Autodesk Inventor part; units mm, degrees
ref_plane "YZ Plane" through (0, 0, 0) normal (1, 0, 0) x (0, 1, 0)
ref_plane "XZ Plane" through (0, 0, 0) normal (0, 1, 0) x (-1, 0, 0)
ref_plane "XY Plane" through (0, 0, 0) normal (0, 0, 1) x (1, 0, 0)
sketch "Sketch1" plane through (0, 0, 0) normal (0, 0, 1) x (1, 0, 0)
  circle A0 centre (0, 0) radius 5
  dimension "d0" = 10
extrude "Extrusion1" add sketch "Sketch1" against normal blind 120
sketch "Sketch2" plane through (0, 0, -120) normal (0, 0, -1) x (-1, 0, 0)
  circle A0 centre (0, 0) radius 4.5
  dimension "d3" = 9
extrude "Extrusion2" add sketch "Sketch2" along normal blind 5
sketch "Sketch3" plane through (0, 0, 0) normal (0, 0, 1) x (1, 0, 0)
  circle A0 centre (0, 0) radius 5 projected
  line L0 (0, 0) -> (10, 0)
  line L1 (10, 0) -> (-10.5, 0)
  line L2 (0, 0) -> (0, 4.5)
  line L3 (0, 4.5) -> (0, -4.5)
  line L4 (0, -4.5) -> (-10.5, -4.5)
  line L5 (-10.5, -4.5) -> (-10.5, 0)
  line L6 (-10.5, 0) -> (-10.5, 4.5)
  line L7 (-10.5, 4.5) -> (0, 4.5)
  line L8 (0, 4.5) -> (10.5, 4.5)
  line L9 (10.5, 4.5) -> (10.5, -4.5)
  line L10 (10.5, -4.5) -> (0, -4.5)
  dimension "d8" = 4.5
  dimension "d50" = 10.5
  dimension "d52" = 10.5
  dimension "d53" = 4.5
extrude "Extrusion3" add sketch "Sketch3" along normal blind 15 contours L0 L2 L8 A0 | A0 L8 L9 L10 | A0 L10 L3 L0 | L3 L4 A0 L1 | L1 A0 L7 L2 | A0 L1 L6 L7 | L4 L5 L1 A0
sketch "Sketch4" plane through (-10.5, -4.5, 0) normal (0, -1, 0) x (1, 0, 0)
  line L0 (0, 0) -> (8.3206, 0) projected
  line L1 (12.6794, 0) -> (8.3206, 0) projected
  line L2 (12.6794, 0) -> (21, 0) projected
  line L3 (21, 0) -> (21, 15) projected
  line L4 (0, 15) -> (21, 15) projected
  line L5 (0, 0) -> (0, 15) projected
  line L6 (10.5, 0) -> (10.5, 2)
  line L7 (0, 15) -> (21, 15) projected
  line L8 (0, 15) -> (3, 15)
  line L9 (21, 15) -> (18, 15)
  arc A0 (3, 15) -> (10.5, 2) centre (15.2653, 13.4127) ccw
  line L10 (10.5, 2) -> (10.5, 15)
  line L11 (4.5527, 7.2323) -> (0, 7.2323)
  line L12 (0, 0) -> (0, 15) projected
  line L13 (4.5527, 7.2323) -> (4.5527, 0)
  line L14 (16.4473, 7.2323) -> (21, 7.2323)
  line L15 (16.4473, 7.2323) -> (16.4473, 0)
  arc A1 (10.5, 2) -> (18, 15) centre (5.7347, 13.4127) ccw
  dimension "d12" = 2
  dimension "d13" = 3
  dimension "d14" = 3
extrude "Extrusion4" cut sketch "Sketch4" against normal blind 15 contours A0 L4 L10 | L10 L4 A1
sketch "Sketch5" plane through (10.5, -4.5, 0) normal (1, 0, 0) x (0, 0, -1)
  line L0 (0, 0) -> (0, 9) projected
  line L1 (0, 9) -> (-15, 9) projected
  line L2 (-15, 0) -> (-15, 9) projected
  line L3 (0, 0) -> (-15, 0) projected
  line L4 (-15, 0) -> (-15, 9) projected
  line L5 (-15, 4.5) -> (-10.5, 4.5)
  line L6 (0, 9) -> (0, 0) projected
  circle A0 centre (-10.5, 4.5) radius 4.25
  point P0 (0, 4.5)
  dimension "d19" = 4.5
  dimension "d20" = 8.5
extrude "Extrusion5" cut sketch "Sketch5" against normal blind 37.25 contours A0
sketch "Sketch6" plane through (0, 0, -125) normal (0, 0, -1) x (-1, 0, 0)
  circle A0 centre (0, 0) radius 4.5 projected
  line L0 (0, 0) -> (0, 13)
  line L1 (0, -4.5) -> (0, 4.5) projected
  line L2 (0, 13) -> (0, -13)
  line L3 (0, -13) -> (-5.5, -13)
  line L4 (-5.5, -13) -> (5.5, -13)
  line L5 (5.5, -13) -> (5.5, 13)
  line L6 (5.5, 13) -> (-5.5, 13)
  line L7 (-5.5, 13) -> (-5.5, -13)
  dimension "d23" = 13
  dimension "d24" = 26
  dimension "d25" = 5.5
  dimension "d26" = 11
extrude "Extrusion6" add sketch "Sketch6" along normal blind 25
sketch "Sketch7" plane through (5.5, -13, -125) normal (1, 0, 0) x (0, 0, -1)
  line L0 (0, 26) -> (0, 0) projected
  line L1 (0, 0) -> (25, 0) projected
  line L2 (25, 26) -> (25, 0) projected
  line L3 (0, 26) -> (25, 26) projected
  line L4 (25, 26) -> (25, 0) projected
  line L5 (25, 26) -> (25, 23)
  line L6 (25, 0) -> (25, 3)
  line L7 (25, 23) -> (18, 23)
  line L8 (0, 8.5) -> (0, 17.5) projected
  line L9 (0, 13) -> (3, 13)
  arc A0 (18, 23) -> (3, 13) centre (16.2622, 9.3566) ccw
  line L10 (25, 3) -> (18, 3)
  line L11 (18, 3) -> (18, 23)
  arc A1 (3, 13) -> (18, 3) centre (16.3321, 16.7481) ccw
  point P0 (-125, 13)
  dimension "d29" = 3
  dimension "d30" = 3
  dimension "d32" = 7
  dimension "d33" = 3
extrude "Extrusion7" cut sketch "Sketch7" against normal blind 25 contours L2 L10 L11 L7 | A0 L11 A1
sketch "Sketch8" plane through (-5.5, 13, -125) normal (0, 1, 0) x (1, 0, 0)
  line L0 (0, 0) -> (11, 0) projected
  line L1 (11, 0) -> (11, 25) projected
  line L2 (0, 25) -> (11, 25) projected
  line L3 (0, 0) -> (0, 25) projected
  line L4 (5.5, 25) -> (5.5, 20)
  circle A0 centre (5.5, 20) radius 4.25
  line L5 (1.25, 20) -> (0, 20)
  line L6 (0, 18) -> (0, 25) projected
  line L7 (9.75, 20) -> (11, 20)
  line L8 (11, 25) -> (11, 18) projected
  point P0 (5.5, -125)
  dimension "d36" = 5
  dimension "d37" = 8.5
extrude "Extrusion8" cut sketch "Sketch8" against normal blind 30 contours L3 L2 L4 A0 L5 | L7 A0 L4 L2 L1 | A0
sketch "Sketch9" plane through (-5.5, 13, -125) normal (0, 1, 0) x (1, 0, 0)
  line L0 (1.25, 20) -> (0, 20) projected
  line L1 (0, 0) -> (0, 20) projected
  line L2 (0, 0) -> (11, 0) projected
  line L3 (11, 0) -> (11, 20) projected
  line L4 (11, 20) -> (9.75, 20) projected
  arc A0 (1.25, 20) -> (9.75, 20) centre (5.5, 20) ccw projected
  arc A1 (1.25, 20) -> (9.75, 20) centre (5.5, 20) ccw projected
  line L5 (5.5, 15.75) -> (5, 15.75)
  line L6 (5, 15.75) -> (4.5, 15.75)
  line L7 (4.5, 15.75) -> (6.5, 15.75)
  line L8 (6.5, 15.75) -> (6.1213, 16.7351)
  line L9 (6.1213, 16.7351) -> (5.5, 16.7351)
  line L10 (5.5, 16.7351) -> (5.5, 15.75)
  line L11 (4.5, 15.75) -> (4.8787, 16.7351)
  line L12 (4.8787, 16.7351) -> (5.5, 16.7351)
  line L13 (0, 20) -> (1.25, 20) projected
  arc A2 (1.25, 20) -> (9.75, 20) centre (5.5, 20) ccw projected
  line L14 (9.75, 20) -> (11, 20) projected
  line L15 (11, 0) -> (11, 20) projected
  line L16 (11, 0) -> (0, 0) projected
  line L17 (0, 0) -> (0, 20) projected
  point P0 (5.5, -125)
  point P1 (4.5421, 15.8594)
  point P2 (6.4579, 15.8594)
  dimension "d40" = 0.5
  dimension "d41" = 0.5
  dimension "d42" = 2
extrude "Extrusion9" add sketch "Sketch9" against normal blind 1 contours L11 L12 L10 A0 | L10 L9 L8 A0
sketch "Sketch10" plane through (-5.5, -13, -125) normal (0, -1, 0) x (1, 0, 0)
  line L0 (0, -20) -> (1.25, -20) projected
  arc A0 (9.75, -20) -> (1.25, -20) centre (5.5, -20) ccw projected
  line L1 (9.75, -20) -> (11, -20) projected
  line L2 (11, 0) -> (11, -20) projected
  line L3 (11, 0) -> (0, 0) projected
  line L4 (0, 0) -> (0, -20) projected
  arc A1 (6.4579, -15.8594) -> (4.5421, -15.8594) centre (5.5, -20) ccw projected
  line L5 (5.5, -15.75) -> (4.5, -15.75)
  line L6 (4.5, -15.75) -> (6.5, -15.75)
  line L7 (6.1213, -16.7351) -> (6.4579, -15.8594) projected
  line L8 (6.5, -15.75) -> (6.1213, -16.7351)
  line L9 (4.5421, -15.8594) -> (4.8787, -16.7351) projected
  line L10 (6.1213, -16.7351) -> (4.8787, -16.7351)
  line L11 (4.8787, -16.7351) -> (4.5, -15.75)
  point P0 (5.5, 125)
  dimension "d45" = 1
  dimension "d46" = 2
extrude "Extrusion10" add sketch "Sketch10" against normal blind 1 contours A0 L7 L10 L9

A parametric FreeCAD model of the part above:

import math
import FreeCAD as App
import Part
import Sketcher
from FreeCAD import Vector
Q = App.Units.Quantity


def add_polygon(sketch, points):
    """Adds a closed chain of lines whose ends are joined by coincident constraints."""
    first, n = sketch.GeometryCount, len(points)
    for a, b in zip(points, points[1:] + points[:1]):
        sketch.addGeometry(Part.LineSegment(App.Vector(*a, 0), App.Vector(*b, 0)), False)
    for i in range(n):
        sketch.addConstraint(Sketcher.Constraint("Coincident", first + i, 2, first + (i + 1) % n, 1))

doc = App.newDocument("Part")
body = doc.addObject("PartDesign::Body", "Body")

# Sketch on XY plane
sketch1 = body.newObject("Sketcher::SketchObject", "Sketch")
sketch1.AttachmentSupport = (doc.getObject("XY_Plane"), [""])
sketch1.MapMode = "FlatFace"
sketch1.addGeometry(Part.Circle(Vector(0, 0, 0), Vector(0, 0, 1), 5), False)
sketch1.addConstraint([
    Sketcher.Constraint("Coincident", 0, 3, -1, 1),
    Sketcher.Constraint("Diameter", 0, Q("10 mm")),
])
pad1 = body.newObject("PartDesign::Pad", "Pad")
pad1.Profile = sketch1
pad1.Length = 120
pad1.Reversed = True

# Sketch on XY plane
sketch2 = body.newObject("Sketcher::SketchObject", "Sketch001")
sketch2.AttachmentSupport = (doc.getObject("XY_Plane"), [""])
sketch2.MapMode = "FlatFace"
sketch2.AttachmentOffset = App.Placement(Vector(0, 0, -120), App.Rotation())
sketch2.addGeometry(Part.Circle(Vector(0, 0, 0), Vector(0, 0, 1), 4.5), False)
sketch2.addConstraint([
    Sketcher.Constraint("Coincident", 0, 3, -1, 1),
    Sketcher.Constraint("Diameter", 0, Q("9 mm")),
])
pad2 = body.newObject("PartDesign::Pad", "Pad001")
pad2.Profile = sketch2
pad2.Length = 5
pad2.Reversed = True

# Sketch on XY plane
sketch3 = body.newObject("Sketcher::SketchObject", "Sketch002")
sketch3.AttachmentSupport = (doc.getObject("XY_Plane"), [""])
sketch3.MapMode = "FlatFace"
add_polygon(sketch3, [(-10, 4), (-10, -4), (10, -4), (10, 4)])  # lines 0-3
sketch3.addConstraint([
    Sketcher.Constraint("Vertical", 0),
    Sketcher.Constraint("Horizontal", 1),
    Sketcher.Constraint("Vertical", 2),
    Sketcher.Constraint("Horizontal", 3),
    Sketcher.Constraint("Symmetric", 0, 2, 2, 2, -1, 1),
    Sketcher.Constraint("DistanceX", 0, 2, -1, 1, Q("10.5 mm")),
    Sketcher.Constraint("DistanceY", 0, 2, -1, 1, Q("4.5 mm")),
])
pad3 = body.newObject("PartDesign::Pad", "Pad002")
pad3.Profile = sketch3
pad3.Length = 15

# Sketch on XZ plane
sketch4 = body.newObject("Sketcher::SketchObject", "Sketch003")
sketch4.AttachmentSupport = (doc.getObject("XZ_Plane"), [""])
sketch4.MapMode = "FlatFace"
sketch4.AttachmentOffset = App.Placement(Vector(0, 0, 4.5), App.Rotation())
sketch4.addGeometry([
    Part.ArcOfCircle(Part.Circle(Vector(5, 13, 0), Vector(0, 0, 1), 12), math.radians(173), math.radians(247)),
    Part.ArcOfCircle(Part.Circle(Vector(-5, 13, 0), Vector(0, 0, 1), 12), math.radians(-67), math.radians(7)),
    Part.LineSegment(Vector(8, 15, 0), Vector(-8, 15, 0)),
], False)
sketch4.addConstraint([
    Sketcher.Constraint("Coincident", 0, 2, 1, 1),
    Sketcher.Constraint("Coincident", 1, 2, 2, 1),
    Sketcher.Constraint("Coincident", 2, 2, 0, 1),
    Sketcher.Constraint("Horizontal", 2),
    Sketcher.Constraint("Equal", 0, 1),
    Sketcher.Constraint("Symmetric", 0, 3, 1, 3, -2),
    Sketcher.Constraint("DistanceY", -1, 1, 0, 2, Q("2 mm")),
    Sketcher.Constraint("DistanceX", 2, 2, 2, 1, Q("15 mm")),
    Sketcher.Constraint("DistanceY", -1, 1, 1, 2, Q("15 mm")),
    Sketcher.Constraint("Radius", 0, Q("12.3676 mm")),
])
pocket1 = body.newObject("PartDesign::Pocket", "Pocket")
pocket1.Profile = sketch4
pocket1.Length = 15

# Sketch on YZ plane
sketch5 = body.newObject("Sketcher::SketchObject", "Sketch004")
sketch5.AttachmentSupport = (doc.getObject("YZ_Plane"), [""])
sketch5.MapMode = "FlatFace"
sketch5.AttachmentOffset = App.Placement(Vector(0, 0, 10.5), App.Rotation())
sketch5.addGeometry(Part.Circle(Vector(0, 10.5, 0), Vector(0, 0, 1), 4.2), False)
sketch5.addConstraint([
    Sketcher.Constraint("PointOnObject", 0, 3, -2),
    Sketcher.Constraint("Diameter", 0, Q("8.5 mm")),
    Sketcher.Constraint("DistanceY", -1, 1, 0, 3, Q("10.5 mm")),
])
pocket2 = body.newObject("PartDesign::Pocket", "Pocket001")
pocket2.Profile = sketch5
pocket2.Length = 37.25

# Sketch on XY plane
sketch6 = body.newObject("Sketcher::SketchObject", "Sketch005")
sketch6.AttachmentSupport = (doc.getObject("XY_Plane"), [""])
sketch6.MapMode = "FlatFace"
sketch6.AttachmentOffset = App.Placement(Vector(0, 0, -125), App.Rotation())
add_polygon(sketch6, [(-6, 13), (6, 13), (6, -13), (-6, -13)])  # lines 0-3
sketch6.addConstraint([
    Sketcher.Constraint("Horizontal", 0),
    Sketcher.Constraint("Vertical", 1),
    Sketcher.Constraint("Horizontal", 2),
    Sketcher.Constraint("Vertical", 3),
    Sketcher.Constraint("Symmetric", 0, 2, 2, 2, -1, 1),
    Sketcher.Constraint("DistanceX", 0, 1, 0, 2, Q("11 mm")),
    Sketcher.Constraint("DistanceY", 1, 2, 1, 1, Q("26 mm")),
])
pad4 = body.newObject("PartDesign::Pad", "Pad003")
pad4.Profile = sketch6
pad4.Length = 25
pad4.Reversed = True

# Sketch on YZ plane
sketch7 = body.newObject("Sketcher::SketchObject", "Sketch006")
sketch7.AttachmentSupport = (doc.getObject("YZ_Plane"), [""])
sketch7.MapMode = "FlatFace"
sketch7.AttachmentOffset = App.Placement(Vector(0, 0, 5.5), App.Rotation())
sketch7.addGeometry([
    Part.LineSegment(Vector(-10, -150, 0), Vector(10, -150, 0)),  # 0
    Part.LineSegment(Vector(10, -150, 0), Vector(10, -143, 0)),  # 1
    Part.ArcOfCircle(Part.Circle(Vector(-4, -141, 0), Vector(0, 0, 1), 14), math.radians(-7), math.radians(75)),  # 2
    Part.ArcOfCircle(Part.Circle(Vector(4, -141, 0), Vector(0, 0, 1), 14), math.radians(106), math.radians(187)),  # 3
    Part.LineSegment(Vector(-10, -143, 0), Vector(-10, -150, 0)),  # 4
], False)
sketch7.addConstraint([
    Sketcher.Constraint("Coincident", 0, 2, 1, 1),
    Sketcher.Constraint("Coincident", 1, 2, 2, 1),
    Sketcher.Constraint("Coincident", 2, 2, 3, 1),
    Sketcher.Constraint("Coincident", 3, 2, 4, 1),
    Sketcher.Constraint("Coincident", 4, 2, 0, 1),
    Sketcher.Constraint("Horizontal", 0),
    Sketcher.Constraint("Vertical", 1),
    Sketcher.Constraint("Vertical", 4),
    Sketcher.Constraint("Symmetric", 1, 2, 3, 2, -2),
    Sketcher.Constraint("PointOnObject", 2, 2, -2),
    Sketcher.Constraint("DistanceY", 1, 1, 1, 2, Q("7 mm")),
    Sketcher.Constraint("DistanceX", 0, 1, 0, 2, Q("20 mm")),
    Sketcher.Constraint("DistanceY", 0, 2, -1, 1, Q("150 mm")),
    Sketcher.Constraint("DistanceY", 2, 2, -1, 1, Q("128 mm")),
    Sketcher.Constraint("Radius", 3, Q("13.849 mm")),
    Sketcher.Constraint("Radius", 2, Q("13.7536 mm")),
])
pocket3 = body.newObject("PartDesign::Pocket", "Pocket002")
pocket3.Profile = sketch7
pocket3.Length = 25

# Sketch on XZ plane
sketch8 = body.newObject("Sketcher::SketchObject", "Sketch007")
sketch8.AttachmentSupport = (doc.getObject("XZ_Plane"), [""])
sketch8.MapMode = "FlatFace"
sketch8.AttachmentOffset = App.Placement(Vector(0, 0, -13), App.Rotation())
sketch8.addGeometry([
    Part.LineSegment(Vector(-5.5, -150, 0), Vector(-5.5, -145, 0)),  # 0
    Part.LineSegment(Vector(-5.5, -145, 0), Vector(-4.2, -145, 0)),  # 1
    Part.ArcOfCircle(Part.Circle(Vector(0, -145, 0), Vector(0, 0, 1), 4.2), math.radians(0), math.radians(180)),  # 2
    Part.LineSegment(Vector(4.2, -145, 0), Vector(5.5, -145, 0)),  # 3
    Part.LineSegment(Vector(5.5, -145, 0), Vector(5.5, -150, 0)),  # 4
    Part.LineSegment(Vector(5.5, -150, 0), Vector(-5.5, -150, 0)),  # 5
], False)
sketch8.addConstraint([
    Sketcher.Constraint("Coincident", 0, 2, 1, 1),
    Sketcher.Constraint("Coincident", 1, 2, 2, 2),
    Sketcher.Constraint("Coincident", 2, 1, 3, 1),
    Sketcher.Constraint("Coincident", 3, 2, 4, 1),
    Sketcher.Constraint("Coincident", 4, 2, 5, 1),
    Sketcher.Constraint("Coincident", 5, 2, 0, 1),
    Sketcher.Constraint("Vertical", 0),
    Sketcher.Constraint("Horizontal", 1),
    Sketcher.Constraint("Horizontal", 3),
    Sketcher.Constraint("Vertical", 4),
    Sketcher.Constraint("Horizontal", 5),
    Sketcher.Constraint("Symmetric", 1, 2, 2, 1, -2),
    Sketcher.Constraint("Horizontal", 2, 3, 0, 2),
    Sketcher.Constraint("Equal", 1, 3),
    Sketcher.Constraint("DistanceY", 0, 1, 0, 2, Q("5 mm")),
    Sketcher.Constraint("Radius", 2, Q("4.25 mm")),
    Sketcher.Constraint("DistanceX", 5, 2, 5, 1, Q("11 mm")),
    Sketcher.Constraint("DistanceY", 2, 3, -1, 1, Q("145 mm")),
])
pocket4 = body.newObject("PartDesign::Pocket", "Pocket003")
pocket4.Profile = sketch8
pocket4.Length = 30
pocket4.Reversed = True

# Sketch on XZ plane
sketch9 = body.newObject("Sketcher::SketchObject", "Sketch008")
sketch9.AttachmentSupport = (doc.getObject("XZ_Plane"), [""])
sketch9.MapMode = "FlatFace"
sketch9.AttachmentOffset = App.Placement(Vector(0, 0, -13), App.Rotation())
sketch9.addGeometry([
    Part.LineSegment(Vector(-0.6, -141.7, 0), Vector(-1, -140.9, 0)),
    Part.ArcOfCircle(Part.Circle(Vector(0, -145, 0), Vector(0, 0, 1), 4.2), math.radians(77), math.radians(103)),
    Part.LineSegment(Vector(1, -140.9, 0), Vector(0.6, -141.7, 0)),
    Part.LineSegment(Vector(0.6, -141.7, 0), Vector(-0.6, -141.7, 0)),
], False)
sketch9.addConstraint([
    Sketcher.Constraint("Coincident", 0, 2, 1, 2),
    Sketcher.Constraint("Coincident", 1, 1, 2, 1),
    Sketcher.Constraint("Coincident", 2, 2, 3, 1),
    Sketcher.Constraint("Coincident", 3, 2, 0, 1),
    Sketcher.Constraint("Horizontal", 3),
    Sketcher.Constraint("Symmetric", 0, 2, 1, 1, -2),
    Sketcher.Constraint("Equal", 0, 2),
    Sketcher.Constraint("Radius", 1, Q("4.25 mm")),
    Sketcher.Constraint("DistanceY", 1, 3, -1, 1, Q("145 mm")),
    Sketcher.Constraint("DistanceX", 3, 2, 3, 1, Q("1.2426 mm")),
    Sketcher.Constraint("DistanceX", 0, 2, -1, 1, Q("0.958 mm")),
    Sketcher.Constraint("DistanceY", 2, 2, -1, 1, Q("141.735 mm")),
])
pad5 = body.newObject("PartDesign::Pad", "Pad004")
pad5.Profile = sketch9
pad5.Length = 1

# Sketch on XZ plane
sketch10 = body.newObject("Sketcher::SketchObject", "Sketch009")
sketch10.AttachmentSupport = (doc.getObject("XZ_Plane"), [""])
sketch10.MapMode = "FlatFace"
sketch10.AttachmentOffset = App.Placement(Vector(0, 0, 13), App.Rotation())
sketch10.addGeometry([
    Part.ArcOfCircle(Part.Circle(Vector(0, -145, 0), Vector(0, 0, 1), 4.2), math.radians(77), math.radians(103)),
    Part.LineSegment(Vector(-1, -140.9, 0), Vector(-0.6, -141.7, 0)),
    Part.LineSegment(Vector(-0.6, -141.7, 0), Vector(0.6, -141.7, 0)),
    Part.LineSegment(Vector(0.6, -141.7, 0), Vector(1, -140.9, 0)),
], False)
sketch10.addConstraint([
    Sketcher.Constraint("Coincident", 0, 2, 1, 1),
    Sketcher.Constraint("Coincident", 1, 2, 2, 1),
    Sketcher.Constraint("Coincident", 2, 2, 3, 1),
    Sketcher.Constraint("Coincident", 3, 2, 0, 1),
    Sketcher.Constraint("Horizontal", 2),
    Sketcher.Constraint("Symmetric", 0, 2, 3, 2, -2),
    Sketcher.Constraint("Equal", 1, 3),
    Sketcher.Constraint("Radius", 0, Q("4.25 mm")),
    Sketcher.Constraint("DistanceY", 0, 3, -1, 1, Q("145 mm")),
    Sketcher.Constraint("DistanceX", 2, 1, 2, 2, Q("1.2426 mm")),
    Sketcher.Constraint("DistanceX", 0, 2, -1, 1, Q("0.958 mm")),
    Sketcher.Constraint("DistanceY", 1, 2, -1, 1, Q("141.735 mm")),
])
pad6 = body.newObject("PartDesign::Pad", "Pad005")
pad6.Profile = sketch10
pad6.Length = 1
pad6.Reversed = True

doc.recompute()
